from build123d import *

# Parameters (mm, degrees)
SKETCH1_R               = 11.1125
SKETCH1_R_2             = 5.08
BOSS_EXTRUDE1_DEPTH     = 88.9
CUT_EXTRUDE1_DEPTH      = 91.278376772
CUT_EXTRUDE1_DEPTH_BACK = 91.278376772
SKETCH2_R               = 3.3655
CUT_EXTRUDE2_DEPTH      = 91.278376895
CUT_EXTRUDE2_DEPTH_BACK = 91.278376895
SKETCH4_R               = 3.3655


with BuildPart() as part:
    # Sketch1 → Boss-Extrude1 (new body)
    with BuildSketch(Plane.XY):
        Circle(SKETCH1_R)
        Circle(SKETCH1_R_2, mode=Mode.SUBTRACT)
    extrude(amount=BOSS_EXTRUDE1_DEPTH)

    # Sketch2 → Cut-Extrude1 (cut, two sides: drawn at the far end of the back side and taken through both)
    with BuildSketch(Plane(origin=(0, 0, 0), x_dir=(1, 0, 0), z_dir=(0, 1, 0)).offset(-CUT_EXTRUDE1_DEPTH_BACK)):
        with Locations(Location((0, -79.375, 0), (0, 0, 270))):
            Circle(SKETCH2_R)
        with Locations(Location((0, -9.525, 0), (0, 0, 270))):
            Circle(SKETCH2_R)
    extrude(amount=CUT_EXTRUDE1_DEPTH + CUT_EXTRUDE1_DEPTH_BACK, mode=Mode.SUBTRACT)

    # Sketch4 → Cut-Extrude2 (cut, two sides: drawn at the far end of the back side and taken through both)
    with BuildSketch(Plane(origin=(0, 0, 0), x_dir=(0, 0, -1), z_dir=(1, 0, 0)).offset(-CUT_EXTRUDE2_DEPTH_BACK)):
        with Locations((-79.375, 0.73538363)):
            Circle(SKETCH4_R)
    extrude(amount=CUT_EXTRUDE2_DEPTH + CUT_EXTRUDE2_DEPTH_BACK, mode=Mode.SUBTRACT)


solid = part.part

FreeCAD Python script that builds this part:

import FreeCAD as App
import Part
import Sketcher
from FreeCAD import Vector
Q = App.Units.Quantity

doc = App.newDocument("Part")
params = doc.addObject("Spreadsheet::Sheet", "Params")
for row, (alias, value) in enumerate([
    ("sketch1_diameter", "0.4 in"),
    ("sketch1_diameter2", "0.875 in"),
    ("pad1_length", "3.5 in"),
    ("sketch2_diameter", "0.265 in"),
    ("sketch3_diameter", "0.265 in"),
], start=1):
    params.set(f"A{row}", alias)
    params.set(f"B{row}", "=" + value)
    params.setAlias(f"B{row}", alias)

body = doc.addObject("PartDesign::Body", "Body")

# Sketch on XY plane
sketch1 = body.newObject("Sketcher::SketchObject", "Sketch")
sketch1.AttachmentSupport = (doc.getObject("XY_Plane"), [""])
sketch1.MapMode = "FlatFace"
sketch1.addGeometry([
    Part.Circle(Vector(0, 0, 0), Vector(0, 0, 1), 11),
    Part.Circle(Vector(0, 0, 0), Vector(0, 0, 1), 5),
], False)
sketch1.addConstraint([
    Sketcher.Constraint("Coincident", 0, 3, -1, 1),
    Sketcher.Constraint("Coincident", 1, 3, -1, 1),
    Sketcher.Constraint("Diameter", 1, Q("0.4 in")),
    Sketcher.Constraint("Diameter", 0, Q("0.875 in")),
])
sketch1.setExpression("Constraints[2]", "Params.sketch1_diameter")
sketch1.setExpression("Constraints[3]", "Params.sketch1_diameter2")
pad1 = body.newObject("PartDesign::Pad", "Pad")
pad1.Profile = sketch1
pad1.setExpression("Length", "Params.pad1_length")

# Sketch on XZ plane
sketch2 = body.newObject("Sketcher::SketchObject", "Sketch001")
sketch2.AttachmentSupport = (doc.getObject("XZ_Plane"), [""])
sketch2.MapMode = "FlatFace"
sketch2.addGeometry([
    Part.Circle(Vector(0, 79.4, 0), Vector(0, 0, 1), 3.4),
    Part.Circle(Vector(0, 9.5, 0), Vector(0, 0, 1), 3.4),
], False)
sketch2.addConstraint([
    Sketcher.Constraint("Equal", 0, 1),
    Sketcher.Constraint("PointOnObject", 0, 3, -2),
    Sketcher.Constraint("PointOnObject", 1, 3, -2),
    Sketcher.Constraint("Diameter", 0, Q("0.265 in")),
    Sketcher.Constraint("DistanceY", 1, 3, 0, 3, Q("2.75 in")),
    Sketcher.Constraint("DistanceY", -1, 1, 0, 3, Q("3.125 in")),
])
sketch2.setExpression("Constraints[3]", "Params.sketch2_diameter")
pocket1 = body.newObject("PartDesign::Pocket", "Pocket")
pocket1.Profile = sketch2
pocket1.Type = "ThroughAll"
pocket1.Midplane = True

# Sketch on YZ plane
sketch3 = body.newObject("Sketcher::SketchObject", "Sketch002")
sketch3.AttachmentSupport = (doc.getObject("YZ_Plane"), [""])
sketch3.MapMode = "FlatFace"
sketch3.addGeometry(Part.Circle(Vector(0.7, 79.4, 0), Vector(0, 0, 1), 3.4), False)
sketch3.addConstraint([
    Sketcher.Constraint("Diameter", 0, Q("0.265 in")),
    Sketcher.Constraint("DistanceY", -1, 1, 0, 3, Q("3.125 in")),
    Sketcher.Constraint("DistanceX", -1, 1, 0, 3, 0.735384),
])
sketch3.setExpression("Constraints[0]", "Params.sketch3_diameter")
pocket2 = body.newObject("PartDesign::Pocket", "Pocket001")
pocket2.Profile = sketch3
pocket2.Type = "ThroughAll"
pocket2.Midplane = True

doc.recompute()
